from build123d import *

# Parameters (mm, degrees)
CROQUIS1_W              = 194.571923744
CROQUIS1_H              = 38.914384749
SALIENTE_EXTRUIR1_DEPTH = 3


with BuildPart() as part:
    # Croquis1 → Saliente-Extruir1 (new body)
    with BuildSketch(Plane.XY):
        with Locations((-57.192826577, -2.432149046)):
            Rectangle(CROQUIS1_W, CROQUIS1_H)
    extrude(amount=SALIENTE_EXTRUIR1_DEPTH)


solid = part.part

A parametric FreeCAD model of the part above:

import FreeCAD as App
import Part
import Sketcher

V = App.Vector


def add_polygon(sketch, points):
    """Adds a closed chain of lines whose ends are joined by coincident constraints."""
    first, n = sketch.GeometryCount, len(points)
    for a, b in zip(points, points[1:] + points[:1]):
        sketch.addGeometry(Part.LineSegment(App.Vector(*a, 0), App.Vector(*b, 0)), False)
    for i in range(n):
        sketch.addConstraint(Sketcher.Constraint("Coincident", first + i, 2, first + (i + 1) % n, 1))

doc = App.newDocument("Part")
body = doc.addObject("PartDesign::Body", "Body")

# Sketch on XY plane
sketch1 = body.newObject("Sketcher::SketchObject", "Sketch")
sketch1.AttachmentSupport = (doc.getObject("XY_Plane"), [""])
sketch1.MapMode = "FlatFace"
add_polygon(sketch1, [(-154, 17), (-154, -22), (40, -22), (40, 17)])  # lines 0-3
sketch1.addConstraint(Sketcher.Constraint("Vertical", 0))
sketch1.addConstraint(Sketcher.Constraint("Horizontal", 1))
sketch1.addConstraint(Sketcher.Constraint("Vertical", 2))
sketch1.addConstraint(Sketcher.Constraint("Horizontal", 3))
sketch1.addConstraint(Sketcher.Constraint("DistanceX", 1, 1, 1, 2, 194.571924))
sketch1.addConstraint(Sketcher.Constraint("DistanceY", 0, 2, 0, 1, 38.914385))
sketch1.addConstraint(Sketcher.Constraint("DistanceX", 0, 2, -1, 1, 154.478788))
sketch1.addConstraint(Sketcher.Constraint("DistanceY", 0, 2, -1, 1, 21.889341))
pad1 = body.newObject("PartDesign::Pad", "Pad")
pad1.Profile = sketch1
pad1.Length = 3

doc.recompute()
